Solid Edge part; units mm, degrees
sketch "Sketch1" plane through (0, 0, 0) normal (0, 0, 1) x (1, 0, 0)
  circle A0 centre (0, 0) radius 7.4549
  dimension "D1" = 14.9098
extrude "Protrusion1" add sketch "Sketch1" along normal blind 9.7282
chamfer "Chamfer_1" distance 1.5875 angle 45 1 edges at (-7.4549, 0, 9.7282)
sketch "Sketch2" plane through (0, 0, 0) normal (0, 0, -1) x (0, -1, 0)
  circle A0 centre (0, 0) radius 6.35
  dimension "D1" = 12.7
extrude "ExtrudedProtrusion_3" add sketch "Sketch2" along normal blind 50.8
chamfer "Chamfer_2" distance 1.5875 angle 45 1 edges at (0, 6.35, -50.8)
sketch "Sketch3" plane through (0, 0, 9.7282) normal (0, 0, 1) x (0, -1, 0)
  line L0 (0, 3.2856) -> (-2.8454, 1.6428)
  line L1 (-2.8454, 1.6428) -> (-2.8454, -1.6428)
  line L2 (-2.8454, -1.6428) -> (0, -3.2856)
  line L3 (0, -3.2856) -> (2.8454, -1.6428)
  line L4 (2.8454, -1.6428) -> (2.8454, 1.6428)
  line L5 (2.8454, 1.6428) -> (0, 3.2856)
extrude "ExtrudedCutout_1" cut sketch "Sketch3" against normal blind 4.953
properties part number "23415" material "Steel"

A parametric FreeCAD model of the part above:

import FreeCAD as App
import Part
import Sketcher
from FreeCAD import Vector
Q = App.Units.Quantity


def edges_at(feature, points):
    """Names of the edges that pass closest to the given points."""
    edges = feature.Shape.Edges
    near = lambda p: min(range(len(edges)), key=lambda i: edges[i].distToShape(Part.Vertex(*p))[0])
    return sorted({f"Edge{near(p) + 1}" for p in points})


def add_polygon(sketch, points):
    """Adds a closed chain of lines whose ends are joined by coincident constraints."""
    first, n = sketch.GeometryCount, len(points)
    for a, b in zip(points, points[1:] + points[:1]):
        sketch.addGeometry(Part.LineSegment(App.Vector(*a, 0), App.Vector(*b, 0)), False)
    for i in range(n):
        sketch.addConstraint(Sketcher.Constraint("Coincident", first + i, 2, first + (i + 1) % n, 1))

doc = App.newDocument("Part")
body = doc.addObject("PartDesign::Body", "Body")

sketch1 = body.newObject("Sketcher::SketchObject", "Sketch")
sketch1.AttachmentSupport = (doc.getObject("XY_Plane"), [""])
sketch1.MapMode = "FlatFace"
sketch1.addGeometry(Part.Circle(Vector(0, 0, 0), Vector(0, 0, 1), 7), False)
sketch1.addConstraint(Sketcher.Constraint("Coincident", 0, 3, -1, 1))
sketch1.addConstraint(Sketcher.Constraint("Diameter", 0, Q("0.587 in")))
pad1 = body.newObject("PartDesign::Pad", "Pad")
pad1.Profile = sketch1
pad1.Length = Q("0.383 in")
doc.recompute()

chamfer = body.newObject("PartDesign::Chamfer", "Chamfer")
chamfer.Base = (pad1, edges_at(pad1, [(-7.455, 0, 9.728)]))
chamfer.Size = Q("0.0625 in")

sketch2 = body.newObject("Sketcher::SketchObject", "Sketch001")
sketch2.AttachmentSupport = (doc.getObject("XY_Plane"), [""])
sketch2.MapMode = "FlatFace"
sketch2.addGeometry(Part.Circle(Vector(0, 0, 0), Vector(0, 0, 1), 6), False)
sketch2.addConstraint(Sketcher.Constraint("Coincident", 0, 3, -1, 1))
sketch2.addConstraint(Sketcher.Constraint("Diameter", 0, Q("0.5 in")))
pad2 = body.newObject("PartDesign::Pad", "Pad001")
pad2.Profile = sketch2
pad2.Length = Q("2 in")
pad2.Reversed = True
doc.recompute()

chamfer2 = body.newObject("PartDesign::Chamfer", "Chamfer001")
chamfer2.Base = (pad2, edges_at(pad2, [(0, 6.35, -50.8)]))
chamfer2.Size = Q("0.0625 in")

sketch3 = body.newObject("Sketcher::SketchObject", "Sketch002")
sketch3.AttachmentSupport = (doc.getObject("XY_Plane"), [""])
sketch3.MapMode = "FlatFace"
sketch3.AttachmentOffset = App.Placement(Vector(0, 0, 0.383 * 25.4), App.Rotation())
add_polygon(sketch3, [(1.6, -2.8), (3.3, 0), (1.6, 2.8), (-1.6, 2.8), (-3.3, 0), (-1.6, -2.8)])
sketch3.addConstraint(Sketcher.Constraint("Horizontal", 2))
sketch3.addConstraint(Sketcher.Constraint("Horizontal", 5))
sketch3.addConstraint(Sketcher.Constraint("Symmetric", 0, 2, 3, 2, -1, 1))
sketch3.addConstraint(Sketcher.Constraint("Symmetric", 1, 2, 4, 2, -1, 1))
sketch3.addConstraint(Sketcher.Constraint("PointOnObject", 0, 2, -1))
sketch3.addConstraint(Sketcher.Constraint("Parallel", 0, 3))
sketch3.addConstraint(Sketcher.Constraint("Vertical", 2, 2, 4, 2))
sketch3.addConstraint(Sketcher.Constraint("Angle", 0, Q("60 deg")))
sketch3.addConstraint(Sketcher.Constraint("DistanceX", 2, 2, 2, 1, 3.2856))
sketch3.addConstraint(Sketcher.Constraint("DistanceX", 3, 2, 0, 2, Q("0.2587 in")))
pocket1 = body.newObject("PartDesign::Pocket", "Pocket")
pocket1.Profile = sketch3
pocket1.Length = Q("0.195 in")

doc.recompute()
